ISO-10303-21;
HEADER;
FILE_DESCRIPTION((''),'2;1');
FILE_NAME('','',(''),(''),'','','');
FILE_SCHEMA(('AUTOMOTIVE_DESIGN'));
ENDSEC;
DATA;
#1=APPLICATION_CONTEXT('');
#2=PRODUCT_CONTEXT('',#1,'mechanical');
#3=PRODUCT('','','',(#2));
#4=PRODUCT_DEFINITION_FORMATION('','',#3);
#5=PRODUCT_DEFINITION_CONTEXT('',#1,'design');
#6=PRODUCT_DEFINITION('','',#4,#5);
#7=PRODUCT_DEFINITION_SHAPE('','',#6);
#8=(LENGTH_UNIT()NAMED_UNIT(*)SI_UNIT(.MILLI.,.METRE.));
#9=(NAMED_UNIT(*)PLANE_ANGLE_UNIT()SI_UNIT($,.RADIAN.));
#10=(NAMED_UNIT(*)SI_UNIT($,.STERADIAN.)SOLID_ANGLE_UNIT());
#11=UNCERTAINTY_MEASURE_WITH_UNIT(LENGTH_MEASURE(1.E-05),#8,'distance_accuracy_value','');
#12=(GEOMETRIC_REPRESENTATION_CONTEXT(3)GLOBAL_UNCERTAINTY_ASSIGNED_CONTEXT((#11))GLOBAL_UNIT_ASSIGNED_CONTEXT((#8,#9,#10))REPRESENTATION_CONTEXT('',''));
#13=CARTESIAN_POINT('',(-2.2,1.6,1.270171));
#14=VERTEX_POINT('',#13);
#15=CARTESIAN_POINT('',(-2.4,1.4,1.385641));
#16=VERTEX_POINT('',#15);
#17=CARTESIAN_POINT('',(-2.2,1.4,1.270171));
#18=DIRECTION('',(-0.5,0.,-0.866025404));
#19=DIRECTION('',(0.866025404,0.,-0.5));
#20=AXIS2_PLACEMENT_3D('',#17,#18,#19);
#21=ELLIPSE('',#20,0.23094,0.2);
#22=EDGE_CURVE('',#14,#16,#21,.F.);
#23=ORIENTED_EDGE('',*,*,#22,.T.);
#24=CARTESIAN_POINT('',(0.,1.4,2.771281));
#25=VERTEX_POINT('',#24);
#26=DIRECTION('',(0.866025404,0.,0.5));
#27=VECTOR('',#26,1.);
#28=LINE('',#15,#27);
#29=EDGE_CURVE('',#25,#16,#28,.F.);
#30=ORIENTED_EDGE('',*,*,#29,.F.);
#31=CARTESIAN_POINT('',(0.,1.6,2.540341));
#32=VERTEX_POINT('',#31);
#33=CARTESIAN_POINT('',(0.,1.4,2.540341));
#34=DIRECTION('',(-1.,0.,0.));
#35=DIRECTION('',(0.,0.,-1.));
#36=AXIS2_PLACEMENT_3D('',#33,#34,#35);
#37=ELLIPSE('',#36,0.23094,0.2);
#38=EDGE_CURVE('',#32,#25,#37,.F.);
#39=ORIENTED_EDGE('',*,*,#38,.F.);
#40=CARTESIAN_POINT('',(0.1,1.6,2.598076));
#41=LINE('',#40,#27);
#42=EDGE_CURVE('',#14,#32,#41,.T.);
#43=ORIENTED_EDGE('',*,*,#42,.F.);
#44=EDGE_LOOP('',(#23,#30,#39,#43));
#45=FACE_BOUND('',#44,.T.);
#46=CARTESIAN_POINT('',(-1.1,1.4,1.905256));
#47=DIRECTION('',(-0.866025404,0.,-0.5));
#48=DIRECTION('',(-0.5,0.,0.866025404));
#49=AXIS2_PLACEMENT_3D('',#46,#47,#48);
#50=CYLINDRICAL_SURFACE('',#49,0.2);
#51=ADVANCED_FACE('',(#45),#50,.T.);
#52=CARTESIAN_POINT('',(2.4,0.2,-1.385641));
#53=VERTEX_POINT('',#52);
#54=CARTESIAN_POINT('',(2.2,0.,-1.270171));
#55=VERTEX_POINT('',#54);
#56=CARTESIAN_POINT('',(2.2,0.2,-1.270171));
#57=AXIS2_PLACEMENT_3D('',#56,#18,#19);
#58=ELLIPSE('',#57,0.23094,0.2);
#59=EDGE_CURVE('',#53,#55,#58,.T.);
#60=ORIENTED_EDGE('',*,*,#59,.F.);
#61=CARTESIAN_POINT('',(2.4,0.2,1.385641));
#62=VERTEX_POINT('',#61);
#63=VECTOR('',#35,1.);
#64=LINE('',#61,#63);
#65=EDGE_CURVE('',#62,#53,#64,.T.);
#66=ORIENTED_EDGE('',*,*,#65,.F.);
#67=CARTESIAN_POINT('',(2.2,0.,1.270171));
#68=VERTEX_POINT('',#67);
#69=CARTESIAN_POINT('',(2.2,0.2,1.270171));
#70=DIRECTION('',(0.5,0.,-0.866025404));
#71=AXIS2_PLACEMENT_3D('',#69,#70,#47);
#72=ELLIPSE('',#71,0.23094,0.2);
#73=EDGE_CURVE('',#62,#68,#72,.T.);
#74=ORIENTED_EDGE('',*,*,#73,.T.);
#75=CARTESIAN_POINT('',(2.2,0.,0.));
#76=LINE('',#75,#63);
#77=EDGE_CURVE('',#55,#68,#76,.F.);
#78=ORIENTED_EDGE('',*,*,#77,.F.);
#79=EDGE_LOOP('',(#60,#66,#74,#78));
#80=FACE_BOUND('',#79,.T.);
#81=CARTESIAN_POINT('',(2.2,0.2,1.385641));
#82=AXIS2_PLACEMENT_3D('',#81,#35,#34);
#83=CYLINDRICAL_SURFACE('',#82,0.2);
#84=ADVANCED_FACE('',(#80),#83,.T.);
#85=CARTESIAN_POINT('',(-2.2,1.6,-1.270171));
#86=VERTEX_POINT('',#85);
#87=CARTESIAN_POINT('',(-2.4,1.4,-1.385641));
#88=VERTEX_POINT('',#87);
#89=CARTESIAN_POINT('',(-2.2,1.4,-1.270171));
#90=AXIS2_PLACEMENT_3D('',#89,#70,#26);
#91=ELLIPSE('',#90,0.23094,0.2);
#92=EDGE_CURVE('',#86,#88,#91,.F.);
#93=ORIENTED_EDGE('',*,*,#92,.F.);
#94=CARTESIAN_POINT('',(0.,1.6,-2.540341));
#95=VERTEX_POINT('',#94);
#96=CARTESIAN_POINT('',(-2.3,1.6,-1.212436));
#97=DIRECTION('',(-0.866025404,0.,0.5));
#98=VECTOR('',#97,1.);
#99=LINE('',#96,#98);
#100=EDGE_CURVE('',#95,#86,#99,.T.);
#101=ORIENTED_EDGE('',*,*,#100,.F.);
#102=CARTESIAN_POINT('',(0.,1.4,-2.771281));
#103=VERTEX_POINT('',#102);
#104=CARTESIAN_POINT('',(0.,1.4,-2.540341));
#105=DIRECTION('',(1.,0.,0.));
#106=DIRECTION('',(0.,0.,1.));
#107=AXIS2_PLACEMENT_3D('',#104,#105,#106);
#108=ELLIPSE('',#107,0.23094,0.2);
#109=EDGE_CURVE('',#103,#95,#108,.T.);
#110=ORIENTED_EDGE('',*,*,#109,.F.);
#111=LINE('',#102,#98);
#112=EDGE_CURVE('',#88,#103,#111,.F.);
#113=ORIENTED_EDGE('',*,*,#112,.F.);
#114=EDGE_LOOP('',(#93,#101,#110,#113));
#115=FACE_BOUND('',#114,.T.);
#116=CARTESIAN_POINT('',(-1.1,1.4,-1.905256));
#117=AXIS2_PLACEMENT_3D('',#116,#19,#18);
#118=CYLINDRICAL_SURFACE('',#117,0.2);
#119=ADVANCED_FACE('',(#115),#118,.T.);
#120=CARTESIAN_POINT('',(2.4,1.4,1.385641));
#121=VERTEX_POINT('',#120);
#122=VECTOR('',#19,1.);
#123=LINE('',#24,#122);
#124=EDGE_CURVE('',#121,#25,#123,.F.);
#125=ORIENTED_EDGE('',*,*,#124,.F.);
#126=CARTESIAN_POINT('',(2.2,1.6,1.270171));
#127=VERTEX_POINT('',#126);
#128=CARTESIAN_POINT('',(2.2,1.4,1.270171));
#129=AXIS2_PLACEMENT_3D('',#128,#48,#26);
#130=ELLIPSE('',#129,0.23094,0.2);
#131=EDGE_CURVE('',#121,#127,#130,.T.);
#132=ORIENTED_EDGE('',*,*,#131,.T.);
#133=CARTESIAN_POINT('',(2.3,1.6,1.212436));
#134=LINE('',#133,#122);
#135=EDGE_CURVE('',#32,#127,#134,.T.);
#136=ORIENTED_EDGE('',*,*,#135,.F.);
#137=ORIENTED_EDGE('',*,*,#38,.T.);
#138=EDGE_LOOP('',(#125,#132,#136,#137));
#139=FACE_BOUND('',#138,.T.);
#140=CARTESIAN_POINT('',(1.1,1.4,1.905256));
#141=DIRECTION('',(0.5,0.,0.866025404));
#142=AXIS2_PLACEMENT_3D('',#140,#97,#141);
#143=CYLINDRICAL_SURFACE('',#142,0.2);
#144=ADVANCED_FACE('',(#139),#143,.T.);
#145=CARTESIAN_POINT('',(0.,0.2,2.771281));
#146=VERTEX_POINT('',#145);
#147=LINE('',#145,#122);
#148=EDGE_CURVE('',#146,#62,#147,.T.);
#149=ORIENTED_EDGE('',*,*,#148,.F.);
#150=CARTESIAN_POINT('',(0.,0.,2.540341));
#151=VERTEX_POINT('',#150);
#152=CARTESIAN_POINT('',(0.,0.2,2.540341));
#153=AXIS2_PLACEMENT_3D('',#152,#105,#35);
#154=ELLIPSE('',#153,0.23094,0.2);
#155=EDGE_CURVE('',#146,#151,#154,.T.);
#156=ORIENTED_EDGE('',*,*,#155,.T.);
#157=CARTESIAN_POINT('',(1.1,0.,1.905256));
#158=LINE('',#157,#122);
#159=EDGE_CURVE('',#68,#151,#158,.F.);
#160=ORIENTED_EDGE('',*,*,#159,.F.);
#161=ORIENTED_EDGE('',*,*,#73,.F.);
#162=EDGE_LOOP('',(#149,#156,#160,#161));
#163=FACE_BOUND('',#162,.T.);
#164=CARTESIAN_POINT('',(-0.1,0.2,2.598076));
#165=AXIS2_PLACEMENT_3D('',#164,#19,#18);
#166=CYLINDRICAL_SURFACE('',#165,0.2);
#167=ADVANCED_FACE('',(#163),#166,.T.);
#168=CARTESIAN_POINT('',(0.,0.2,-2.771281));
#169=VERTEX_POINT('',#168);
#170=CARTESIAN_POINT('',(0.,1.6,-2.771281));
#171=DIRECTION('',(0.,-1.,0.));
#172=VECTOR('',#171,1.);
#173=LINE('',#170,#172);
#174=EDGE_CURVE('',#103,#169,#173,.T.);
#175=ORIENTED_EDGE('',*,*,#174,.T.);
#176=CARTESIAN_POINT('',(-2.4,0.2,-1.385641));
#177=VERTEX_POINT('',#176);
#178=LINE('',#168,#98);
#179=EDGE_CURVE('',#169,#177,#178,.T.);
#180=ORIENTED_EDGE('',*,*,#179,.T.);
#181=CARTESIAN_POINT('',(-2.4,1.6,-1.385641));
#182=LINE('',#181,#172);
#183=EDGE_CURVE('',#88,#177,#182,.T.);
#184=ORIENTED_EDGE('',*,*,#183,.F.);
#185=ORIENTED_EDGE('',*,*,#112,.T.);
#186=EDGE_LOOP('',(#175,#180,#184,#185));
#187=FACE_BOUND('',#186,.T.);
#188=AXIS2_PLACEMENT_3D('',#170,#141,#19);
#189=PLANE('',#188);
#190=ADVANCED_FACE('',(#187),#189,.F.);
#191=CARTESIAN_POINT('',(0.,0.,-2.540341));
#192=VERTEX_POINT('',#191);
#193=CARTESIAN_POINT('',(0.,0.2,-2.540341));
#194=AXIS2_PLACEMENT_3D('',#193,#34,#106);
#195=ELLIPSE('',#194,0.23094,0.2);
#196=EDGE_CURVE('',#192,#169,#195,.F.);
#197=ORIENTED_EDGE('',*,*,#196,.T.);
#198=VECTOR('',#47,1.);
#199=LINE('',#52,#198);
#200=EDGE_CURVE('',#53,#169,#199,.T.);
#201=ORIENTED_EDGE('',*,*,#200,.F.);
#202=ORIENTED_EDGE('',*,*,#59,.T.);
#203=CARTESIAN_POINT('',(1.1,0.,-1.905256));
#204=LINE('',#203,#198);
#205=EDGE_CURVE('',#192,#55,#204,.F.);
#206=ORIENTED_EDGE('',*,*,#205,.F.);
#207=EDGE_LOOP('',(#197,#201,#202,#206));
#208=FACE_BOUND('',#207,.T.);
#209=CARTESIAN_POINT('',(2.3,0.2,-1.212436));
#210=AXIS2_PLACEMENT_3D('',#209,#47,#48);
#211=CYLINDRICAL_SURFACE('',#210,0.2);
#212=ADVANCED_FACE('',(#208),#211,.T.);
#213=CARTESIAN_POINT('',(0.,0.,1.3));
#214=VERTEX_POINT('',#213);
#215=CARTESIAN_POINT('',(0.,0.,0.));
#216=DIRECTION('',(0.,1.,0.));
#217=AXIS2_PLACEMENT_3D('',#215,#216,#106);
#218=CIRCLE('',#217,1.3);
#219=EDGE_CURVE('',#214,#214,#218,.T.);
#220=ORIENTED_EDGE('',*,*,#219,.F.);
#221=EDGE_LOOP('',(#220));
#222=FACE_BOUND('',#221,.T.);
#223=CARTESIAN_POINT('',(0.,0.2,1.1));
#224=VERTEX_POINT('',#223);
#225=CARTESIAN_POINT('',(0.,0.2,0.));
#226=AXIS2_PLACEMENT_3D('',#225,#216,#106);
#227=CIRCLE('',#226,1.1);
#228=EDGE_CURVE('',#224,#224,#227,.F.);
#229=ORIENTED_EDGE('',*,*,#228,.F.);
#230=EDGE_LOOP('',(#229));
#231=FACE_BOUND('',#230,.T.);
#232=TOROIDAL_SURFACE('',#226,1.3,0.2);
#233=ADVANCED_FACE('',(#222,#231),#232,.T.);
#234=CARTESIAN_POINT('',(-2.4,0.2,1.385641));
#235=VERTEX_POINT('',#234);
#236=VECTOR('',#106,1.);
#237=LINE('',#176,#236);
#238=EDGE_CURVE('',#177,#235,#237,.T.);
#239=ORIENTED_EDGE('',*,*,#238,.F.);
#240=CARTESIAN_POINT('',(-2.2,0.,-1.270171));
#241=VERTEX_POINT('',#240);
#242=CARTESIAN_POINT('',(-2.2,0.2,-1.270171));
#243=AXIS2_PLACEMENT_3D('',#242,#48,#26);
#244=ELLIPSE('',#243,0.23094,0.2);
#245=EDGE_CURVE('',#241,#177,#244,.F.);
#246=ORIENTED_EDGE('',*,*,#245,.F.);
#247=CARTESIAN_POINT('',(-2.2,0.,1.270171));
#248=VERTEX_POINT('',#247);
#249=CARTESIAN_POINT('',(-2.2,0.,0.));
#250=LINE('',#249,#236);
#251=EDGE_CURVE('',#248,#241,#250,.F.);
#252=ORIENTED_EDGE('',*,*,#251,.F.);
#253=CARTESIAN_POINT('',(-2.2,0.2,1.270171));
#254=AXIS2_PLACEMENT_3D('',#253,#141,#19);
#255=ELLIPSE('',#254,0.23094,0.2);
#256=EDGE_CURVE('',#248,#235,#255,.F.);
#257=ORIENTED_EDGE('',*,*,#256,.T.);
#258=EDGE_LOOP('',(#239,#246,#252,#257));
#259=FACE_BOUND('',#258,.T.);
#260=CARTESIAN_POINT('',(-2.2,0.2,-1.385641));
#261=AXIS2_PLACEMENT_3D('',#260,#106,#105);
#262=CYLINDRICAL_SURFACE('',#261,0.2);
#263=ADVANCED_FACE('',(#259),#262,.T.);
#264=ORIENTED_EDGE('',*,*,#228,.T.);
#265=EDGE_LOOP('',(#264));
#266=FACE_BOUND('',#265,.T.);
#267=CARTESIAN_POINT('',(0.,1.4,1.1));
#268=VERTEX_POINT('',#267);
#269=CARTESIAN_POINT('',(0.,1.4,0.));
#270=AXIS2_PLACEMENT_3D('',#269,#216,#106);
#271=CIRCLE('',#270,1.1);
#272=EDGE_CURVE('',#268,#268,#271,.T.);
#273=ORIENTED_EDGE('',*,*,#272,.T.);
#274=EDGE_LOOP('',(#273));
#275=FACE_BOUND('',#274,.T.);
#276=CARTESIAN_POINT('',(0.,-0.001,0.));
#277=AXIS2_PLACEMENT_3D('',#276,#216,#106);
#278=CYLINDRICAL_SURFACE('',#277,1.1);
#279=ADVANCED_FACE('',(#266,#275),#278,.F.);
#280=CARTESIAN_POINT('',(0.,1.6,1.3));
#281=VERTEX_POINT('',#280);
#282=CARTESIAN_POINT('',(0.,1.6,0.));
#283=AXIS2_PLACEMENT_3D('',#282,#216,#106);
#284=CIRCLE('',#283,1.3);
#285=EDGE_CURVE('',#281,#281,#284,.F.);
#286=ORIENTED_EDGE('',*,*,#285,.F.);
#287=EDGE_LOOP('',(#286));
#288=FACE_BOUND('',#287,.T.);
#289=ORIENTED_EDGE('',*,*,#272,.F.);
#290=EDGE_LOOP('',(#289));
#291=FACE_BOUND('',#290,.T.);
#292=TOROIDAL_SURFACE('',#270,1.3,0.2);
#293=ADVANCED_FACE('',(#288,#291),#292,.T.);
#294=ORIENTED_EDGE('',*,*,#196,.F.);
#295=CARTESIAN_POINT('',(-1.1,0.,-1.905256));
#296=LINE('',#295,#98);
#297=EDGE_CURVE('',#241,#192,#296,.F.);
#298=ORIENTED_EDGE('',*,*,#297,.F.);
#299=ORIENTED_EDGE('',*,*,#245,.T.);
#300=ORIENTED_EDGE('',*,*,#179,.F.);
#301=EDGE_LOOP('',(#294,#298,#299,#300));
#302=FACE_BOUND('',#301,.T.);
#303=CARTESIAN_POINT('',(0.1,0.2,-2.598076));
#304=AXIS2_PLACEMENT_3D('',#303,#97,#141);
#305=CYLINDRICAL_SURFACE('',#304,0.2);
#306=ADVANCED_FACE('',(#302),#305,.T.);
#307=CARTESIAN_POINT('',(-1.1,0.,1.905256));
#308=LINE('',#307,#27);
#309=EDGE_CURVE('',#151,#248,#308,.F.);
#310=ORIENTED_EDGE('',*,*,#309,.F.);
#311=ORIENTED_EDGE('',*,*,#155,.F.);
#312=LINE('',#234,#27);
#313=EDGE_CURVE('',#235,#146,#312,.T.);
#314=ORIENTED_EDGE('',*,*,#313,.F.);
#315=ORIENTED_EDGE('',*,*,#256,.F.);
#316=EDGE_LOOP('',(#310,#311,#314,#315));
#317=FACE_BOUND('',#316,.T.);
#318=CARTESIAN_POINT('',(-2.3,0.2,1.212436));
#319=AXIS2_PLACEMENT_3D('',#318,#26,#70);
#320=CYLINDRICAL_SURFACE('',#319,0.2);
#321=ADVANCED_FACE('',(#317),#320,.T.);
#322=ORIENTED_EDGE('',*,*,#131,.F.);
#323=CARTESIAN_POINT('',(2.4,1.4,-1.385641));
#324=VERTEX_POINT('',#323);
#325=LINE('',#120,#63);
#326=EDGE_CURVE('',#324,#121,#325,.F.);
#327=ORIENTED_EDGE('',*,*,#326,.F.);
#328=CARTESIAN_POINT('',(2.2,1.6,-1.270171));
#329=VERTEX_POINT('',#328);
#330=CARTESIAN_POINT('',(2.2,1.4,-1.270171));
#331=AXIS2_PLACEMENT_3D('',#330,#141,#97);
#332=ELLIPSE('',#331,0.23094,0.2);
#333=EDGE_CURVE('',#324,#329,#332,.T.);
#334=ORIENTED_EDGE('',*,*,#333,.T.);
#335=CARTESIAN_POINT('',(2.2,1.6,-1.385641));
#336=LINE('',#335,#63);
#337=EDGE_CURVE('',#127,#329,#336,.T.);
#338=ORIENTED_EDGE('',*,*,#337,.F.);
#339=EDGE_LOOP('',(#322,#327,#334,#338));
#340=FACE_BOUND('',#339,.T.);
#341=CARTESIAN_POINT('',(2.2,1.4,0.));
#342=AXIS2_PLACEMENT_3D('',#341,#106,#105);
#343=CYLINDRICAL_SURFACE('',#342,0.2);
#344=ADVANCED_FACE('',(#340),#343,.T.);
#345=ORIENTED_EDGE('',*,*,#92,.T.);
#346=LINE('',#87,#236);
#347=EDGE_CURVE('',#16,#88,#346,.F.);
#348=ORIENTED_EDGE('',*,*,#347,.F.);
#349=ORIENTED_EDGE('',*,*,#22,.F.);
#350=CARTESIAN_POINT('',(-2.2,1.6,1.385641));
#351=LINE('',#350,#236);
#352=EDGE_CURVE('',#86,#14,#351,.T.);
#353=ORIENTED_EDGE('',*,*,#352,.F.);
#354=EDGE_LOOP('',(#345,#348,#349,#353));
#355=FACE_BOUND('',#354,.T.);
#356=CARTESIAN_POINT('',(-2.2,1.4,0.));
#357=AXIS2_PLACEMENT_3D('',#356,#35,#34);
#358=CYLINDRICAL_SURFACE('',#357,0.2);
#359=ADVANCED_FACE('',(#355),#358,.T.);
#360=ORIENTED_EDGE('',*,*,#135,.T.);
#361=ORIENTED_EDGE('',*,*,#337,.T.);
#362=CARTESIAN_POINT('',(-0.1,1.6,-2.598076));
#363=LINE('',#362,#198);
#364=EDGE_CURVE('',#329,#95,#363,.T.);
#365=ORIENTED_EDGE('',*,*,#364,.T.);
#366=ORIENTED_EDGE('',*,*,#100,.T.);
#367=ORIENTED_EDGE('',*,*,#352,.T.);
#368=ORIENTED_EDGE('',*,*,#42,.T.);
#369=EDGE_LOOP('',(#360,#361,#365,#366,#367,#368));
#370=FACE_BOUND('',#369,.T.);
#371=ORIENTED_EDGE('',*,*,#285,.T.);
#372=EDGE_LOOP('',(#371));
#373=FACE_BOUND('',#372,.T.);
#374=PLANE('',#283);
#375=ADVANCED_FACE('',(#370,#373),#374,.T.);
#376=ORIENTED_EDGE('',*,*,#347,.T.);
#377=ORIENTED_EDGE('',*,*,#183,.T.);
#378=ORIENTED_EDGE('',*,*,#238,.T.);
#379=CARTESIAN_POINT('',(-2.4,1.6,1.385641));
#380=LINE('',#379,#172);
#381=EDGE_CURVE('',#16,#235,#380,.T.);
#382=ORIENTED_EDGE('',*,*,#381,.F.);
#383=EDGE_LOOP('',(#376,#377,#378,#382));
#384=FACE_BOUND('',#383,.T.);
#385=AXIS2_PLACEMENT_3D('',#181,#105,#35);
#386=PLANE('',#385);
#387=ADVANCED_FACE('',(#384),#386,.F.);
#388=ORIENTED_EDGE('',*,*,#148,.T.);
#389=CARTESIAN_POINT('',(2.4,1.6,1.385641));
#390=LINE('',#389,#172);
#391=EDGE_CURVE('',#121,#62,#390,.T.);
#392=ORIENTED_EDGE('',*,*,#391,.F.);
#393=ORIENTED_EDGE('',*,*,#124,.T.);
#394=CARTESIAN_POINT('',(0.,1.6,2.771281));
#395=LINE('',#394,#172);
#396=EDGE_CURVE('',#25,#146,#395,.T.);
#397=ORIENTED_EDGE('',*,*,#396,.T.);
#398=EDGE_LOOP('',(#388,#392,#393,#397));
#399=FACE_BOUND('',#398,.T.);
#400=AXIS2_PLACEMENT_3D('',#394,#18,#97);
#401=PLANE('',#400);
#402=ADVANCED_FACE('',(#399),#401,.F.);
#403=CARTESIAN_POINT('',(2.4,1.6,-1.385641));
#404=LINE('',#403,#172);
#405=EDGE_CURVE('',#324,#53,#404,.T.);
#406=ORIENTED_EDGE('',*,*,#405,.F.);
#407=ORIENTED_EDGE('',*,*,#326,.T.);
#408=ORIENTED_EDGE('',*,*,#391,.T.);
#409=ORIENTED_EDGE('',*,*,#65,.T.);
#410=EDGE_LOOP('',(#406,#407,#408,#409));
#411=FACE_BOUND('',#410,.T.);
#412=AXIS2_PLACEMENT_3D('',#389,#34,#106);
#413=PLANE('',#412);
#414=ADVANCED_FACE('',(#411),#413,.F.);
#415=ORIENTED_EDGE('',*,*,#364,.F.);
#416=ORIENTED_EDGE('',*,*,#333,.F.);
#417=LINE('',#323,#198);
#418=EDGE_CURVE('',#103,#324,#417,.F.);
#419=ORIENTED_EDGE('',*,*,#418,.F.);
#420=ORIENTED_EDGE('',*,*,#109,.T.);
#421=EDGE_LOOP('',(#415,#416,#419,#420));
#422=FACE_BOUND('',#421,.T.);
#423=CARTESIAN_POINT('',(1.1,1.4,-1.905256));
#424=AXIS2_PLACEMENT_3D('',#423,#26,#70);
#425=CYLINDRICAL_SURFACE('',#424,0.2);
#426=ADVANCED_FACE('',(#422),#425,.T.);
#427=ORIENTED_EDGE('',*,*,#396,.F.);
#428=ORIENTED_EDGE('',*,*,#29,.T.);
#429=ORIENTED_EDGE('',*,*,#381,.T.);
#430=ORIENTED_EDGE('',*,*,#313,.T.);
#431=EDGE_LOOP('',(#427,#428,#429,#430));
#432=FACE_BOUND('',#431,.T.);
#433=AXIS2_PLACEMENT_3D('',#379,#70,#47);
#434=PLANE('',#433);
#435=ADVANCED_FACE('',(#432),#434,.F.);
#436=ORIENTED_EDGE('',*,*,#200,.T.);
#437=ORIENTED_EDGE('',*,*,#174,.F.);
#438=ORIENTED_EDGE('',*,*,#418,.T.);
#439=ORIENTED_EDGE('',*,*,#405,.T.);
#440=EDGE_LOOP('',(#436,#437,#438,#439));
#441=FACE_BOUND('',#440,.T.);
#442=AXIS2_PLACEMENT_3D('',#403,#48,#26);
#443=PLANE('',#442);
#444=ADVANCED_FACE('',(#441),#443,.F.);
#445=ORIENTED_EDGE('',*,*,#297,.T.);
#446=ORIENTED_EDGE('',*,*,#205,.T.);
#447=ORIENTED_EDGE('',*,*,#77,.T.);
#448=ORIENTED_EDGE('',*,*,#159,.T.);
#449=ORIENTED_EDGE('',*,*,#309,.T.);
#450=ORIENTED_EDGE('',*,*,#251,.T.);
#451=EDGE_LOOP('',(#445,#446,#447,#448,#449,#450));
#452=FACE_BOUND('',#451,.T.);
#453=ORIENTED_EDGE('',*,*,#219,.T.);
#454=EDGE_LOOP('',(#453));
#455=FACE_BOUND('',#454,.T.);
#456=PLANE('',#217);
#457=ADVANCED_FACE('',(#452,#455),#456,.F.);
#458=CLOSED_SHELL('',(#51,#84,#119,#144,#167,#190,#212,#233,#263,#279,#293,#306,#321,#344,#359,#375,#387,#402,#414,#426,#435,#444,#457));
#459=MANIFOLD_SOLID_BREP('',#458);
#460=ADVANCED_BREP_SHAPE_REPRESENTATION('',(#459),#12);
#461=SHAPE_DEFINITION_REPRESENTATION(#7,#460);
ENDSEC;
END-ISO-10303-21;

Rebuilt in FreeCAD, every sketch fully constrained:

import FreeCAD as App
import Part
import Sketcher
from FreeCAD import Vector
Q = App.Units.Quantity


def edges_at(feature, points):
    """Names of the edges that pass closest to the given points."""
    edges = feature.Shape.Edges
    near = lambda p: min(range(len(edges)), key=lambda i: edges[i].distToShape(Part.Vertex(*p))[0])
    return sorted({f"Edge{near(p) + 1}" for p in points})


def add_polygon(sketch, points):
    """Adds a closed chain of lines whose ends are joined by coincident constraints."""
    first, n = sketch.GeometryCount, len(points)
    for a, b in zip(points, points[1:] + points[:1]):
        sketch.addGeometry(Part.LineSegment(App.Vector(*a, 0), App.Vector(*b, 0)), False)
    for i in range(n):
        sketch.addConstraint(Sketcher.Constraint("Coincident", first + i, 2, first + (i + 1) % n, 1))

doc = App.newDocument("Part")
body = doc.addObject("PartDesign::Body", "Body")

# Sketch on XZ plane
sketch1 = body.newObject("Sketcher::SketchObject", "Sketch")
sketch1.AttachmentSupport = (doc.getObject("XZ_Plane"), [""])
sketch1.MapMode = "FlatFace"
add_polygon(sketch1, [(2.4, -1.4), (0, -2.8), (-2.4, -1.4), (-2.4, 1.4), (0, 2.8), (2.4, 1.4)])  # lines 0-5
sketch1.addConstraint([
    Sketcher.Constraint("Vertical", 2),
    Sketcher.Constraint("Vertical", 5),
    Sketcher.Constraint("Symmetric", 0, 2, 3, 2, -1, 1),
    Sketcher.Constraint("Symmetric", 1, 2, 4, 2, -1, 1),
    Sketcher.Constraint("PointOnObject", 0, 2, -2),
    Sketcher.Constraint("Parallel", 0, 3),
    Sketcher.Constraint("Horizontal", 2, 2, 4, 2),
    Sketcher.Constraint("Angle", 0, Q("-150 deg")),
    Sketcher.Constraint("DistanceX", 1, 2, -1, 1, 2.4),
    Sketcher.Constraint("DistanceY", 2, 1, 2, 2, 2.771281),
])
pad1 = body.newObject("PartDesign::Pad", "Pad")
pad1.Profile = sketch1
pad1.Length = 1.6
pad1.Reversed = True

# Sketch on XZ plane
sketch2 = body.newObject("Sketcher::SketchObject", "Sketch001")
sketch2.AttachmentSupport = (doc.getObject("XZ_Plane"), [""])
sketch2.MapMode = "FlatFace"
sketch2.AttachmentOffset = App.Placement(Vector(0, 0, -1.6), App.Rotation())
sketch2.addGeometry(Part.Circle(Vector(0, 0, 0), Vector(0, 0, 1), 1.1), False)
sketch2.addConstraint([
    Sketcher.Constraint("Coincident", 0, 3, -1, 1),
    Sketcher.Constraint("Diameter", 0, 2.2),
])
pocket1 = body.newObject("PartDesign::Pocket", "Pocket")
pocket1.Profile = sketch2
pocket1.Type = "UpToFirst"
pocket1.Reversed = True
doc.recompute()

fillet = body.newObject("PartDesign::Fillet", "Fillet")
fillet.Base = (pocket1, edges_at(pocket1, [
    (-1.2, 1.6, -2.078),
    (-2.4, 1.6, 0),
    (-1.2, 1.6, 2.078),
    (0, 1.6, -1.1),
    (0, 0, -1.1),
    (1.2, 1.6, 2.078),
    (2.4, 1.6, 0),
    (1.2, 0, 2.078),
    (-1.2, 0, 2.078),
    (-2.4, 0, 0),
    (-1.2, 0, -2.078),
    (1.2, 0, -2.078),
    (2.4, 0, 0),
    (1.2, 1.6, -2.078),
]))
fillet.Radius = 0.2

doc.recompute()
